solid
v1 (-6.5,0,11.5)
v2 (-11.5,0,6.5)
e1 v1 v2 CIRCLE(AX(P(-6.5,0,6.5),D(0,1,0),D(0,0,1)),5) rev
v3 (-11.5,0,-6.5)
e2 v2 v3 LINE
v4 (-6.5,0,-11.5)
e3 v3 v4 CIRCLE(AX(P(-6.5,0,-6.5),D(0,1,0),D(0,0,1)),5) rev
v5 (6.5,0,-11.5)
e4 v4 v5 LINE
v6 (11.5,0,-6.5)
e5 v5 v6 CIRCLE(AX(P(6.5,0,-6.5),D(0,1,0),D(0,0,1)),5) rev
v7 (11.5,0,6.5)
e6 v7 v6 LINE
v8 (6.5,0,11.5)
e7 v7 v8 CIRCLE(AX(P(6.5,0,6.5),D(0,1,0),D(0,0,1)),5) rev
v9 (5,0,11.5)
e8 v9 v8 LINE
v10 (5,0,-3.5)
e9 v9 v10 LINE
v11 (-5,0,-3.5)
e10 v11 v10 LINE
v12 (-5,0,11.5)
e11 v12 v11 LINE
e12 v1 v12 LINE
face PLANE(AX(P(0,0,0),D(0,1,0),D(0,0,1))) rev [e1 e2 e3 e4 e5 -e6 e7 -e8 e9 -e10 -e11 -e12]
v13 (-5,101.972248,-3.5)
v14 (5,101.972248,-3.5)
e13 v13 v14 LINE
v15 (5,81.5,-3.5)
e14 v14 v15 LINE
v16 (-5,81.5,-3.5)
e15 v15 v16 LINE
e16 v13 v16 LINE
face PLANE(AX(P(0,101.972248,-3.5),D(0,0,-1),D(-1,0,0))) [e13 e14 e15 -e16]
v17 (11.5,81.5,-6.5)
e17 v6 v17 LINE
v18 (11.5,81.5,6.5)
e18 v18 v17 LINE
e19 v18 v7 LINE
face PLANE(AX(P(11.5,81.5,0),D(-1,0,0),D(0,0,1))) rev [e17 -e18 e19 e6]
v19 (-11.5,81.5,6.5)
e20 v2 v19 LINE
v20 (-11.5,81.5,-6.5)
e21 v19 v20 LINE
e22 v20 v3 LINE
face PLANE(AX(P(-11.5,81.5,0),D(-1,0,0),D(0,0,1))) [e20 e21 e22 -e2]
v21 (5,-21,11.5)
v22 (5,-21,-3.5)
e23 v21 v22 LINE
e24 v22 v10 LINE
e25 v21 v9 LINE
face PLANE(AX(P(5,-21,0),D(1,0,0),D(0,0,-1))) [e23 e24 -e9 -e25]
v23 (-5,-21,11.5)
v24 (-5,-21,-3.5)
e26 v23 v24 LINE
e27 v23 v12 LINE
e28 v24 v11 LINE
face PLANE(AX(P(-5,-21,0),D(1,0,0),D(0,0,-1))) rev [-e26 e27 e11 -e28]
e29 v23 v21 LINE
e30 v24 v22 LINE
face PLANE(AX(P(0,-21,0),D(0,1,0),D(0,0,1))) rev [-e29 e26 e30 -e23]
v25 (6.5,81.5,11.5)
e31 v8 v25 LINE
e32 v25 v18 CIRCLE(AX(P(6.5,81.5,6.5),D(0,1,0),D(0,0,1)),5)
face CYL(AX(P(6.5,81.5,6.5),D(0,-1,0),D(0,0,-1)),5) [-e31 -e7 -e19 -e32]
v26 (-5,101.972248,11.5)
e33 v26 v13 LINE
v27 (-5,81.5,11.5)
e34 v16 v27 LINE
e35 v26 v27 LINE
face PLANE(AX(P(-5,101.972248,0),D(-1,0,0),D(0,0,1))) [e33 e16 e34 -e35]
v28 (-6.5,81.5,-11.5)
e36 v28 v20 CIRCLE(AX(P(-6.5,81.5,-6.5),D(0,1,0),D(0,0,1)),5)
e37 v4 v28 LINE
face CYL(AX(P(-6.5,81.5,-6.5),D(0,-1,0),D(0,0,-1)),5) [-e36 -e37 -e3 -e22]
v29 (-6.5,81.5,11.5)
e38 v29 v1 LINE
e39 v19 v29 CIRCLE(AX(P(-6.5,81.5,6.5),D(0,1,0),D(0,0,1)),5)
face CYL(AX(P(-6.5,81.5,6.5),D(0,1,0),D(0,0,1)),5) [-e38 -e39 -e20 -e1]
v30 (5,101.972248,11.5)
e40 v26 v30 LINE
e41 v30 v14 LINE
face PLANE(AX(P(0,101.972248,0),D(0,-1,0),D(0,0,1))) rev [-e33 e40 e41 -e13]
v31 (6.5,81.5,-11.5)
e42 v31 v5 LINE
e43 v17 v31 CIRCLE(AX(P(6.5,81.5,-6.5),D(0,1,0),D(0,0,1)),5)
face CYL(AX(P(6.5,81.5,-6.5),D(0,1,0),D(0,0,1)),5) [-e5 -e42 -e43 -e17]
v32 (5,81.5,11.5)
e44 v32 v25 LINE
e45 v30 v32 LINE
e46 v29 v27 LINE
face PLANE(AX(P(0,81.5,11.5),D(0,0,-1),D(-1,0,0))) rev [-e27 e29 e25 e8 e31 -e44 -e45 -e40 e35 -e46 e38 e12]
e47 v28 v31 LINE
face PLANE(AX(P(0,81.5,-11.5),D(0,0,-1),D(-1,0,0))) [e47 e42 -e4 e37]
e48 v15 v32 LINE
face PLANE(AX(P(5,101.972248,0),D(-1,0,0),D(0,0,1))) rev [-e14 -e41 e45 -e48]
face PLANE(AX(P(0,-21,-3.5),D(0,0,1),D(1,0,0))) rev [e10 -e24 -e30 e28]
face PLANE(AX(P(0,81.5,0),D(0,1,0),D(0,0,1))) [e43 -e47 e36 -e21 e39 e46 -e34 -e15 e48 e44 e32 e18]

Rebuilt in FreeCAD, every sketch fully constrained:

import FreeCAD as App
import Part
import Sketcher
from FreeCAD import Vector
Q = App.Units.Quantity


def edges_at(feature, points):
    """Names of the edges that pass closest to the given points."""
    edges = feature.Shape.Edges
    near = lambda p: min(range(len(edges)), key=lambda i: edges[i].distToShape(Part.Vertex(*p))[0])
    return sorted({f"Edge{near(p) + 1}" for p in points})

doc = App.newDocument("Part")
body = doc.addObject("PartDesign::Body", "Body")

# Sketch on XZ plane
sketch1 = doc.addObject("Sketcher::SketchObject", "Sketch")
body.addObject(sketch1)
sketch1.AttachmentSupport = (doc.XZ_Plane, [""])
sketch1.MapMode = "FlatFace"
sketch1.addGeometry([
    Part.LineSegment(Vector(-12, -12, 0), Vector(-12, 12, 0)),
    Part.LineSegment(Vector(-12, 12, 0), Vector(12, 12, 0)),
    Part.LineSegment(Vector(12, 12, 0), Vector(12, -12, 0)),
    Part.LineSegment(Vector(12, -12, 0), Vector(-12, -12, 0)),
], False)
sketch1.addConstraint([
    Sketcher.Constraint("Coincident", 0, 2, 1, 1),
    Sketcher.Constraint("Coincident", 1, 2, 2, 1),
    Sketcher.Constraint("Coincident", 2, 2, 3, 1),
    Sketcher.Constraint("Coincident", 3, 2, 0, 1),
    Sketcher.Constraint("Vertical", 0),
    Sketcher.Constraint("Horizontal", 1),
    Sketcher.Constraint("Vertical", 2),
    Sketcher.Constraint("Horizontal", 3),
    Sketcher.Constraint("Symmetric", 0, 2, 2, 2, -1, 1),
    Sketcher.Constraint("Equal", 3, 0),
    Sketcher.Constraint("DistanceX", 1, 1, 1, 2, Q("23 mm")),
])
pad1 = doc.addObject("PartDesign::Pad", "Pad")
body.addObject(pad1)
pad1.Profile = sketch1
pad1.Length = 81.5
pad1.Reversed = True

# Sketch on XZ plane
sketch2 = doc.addObject("Sketcher::SketchObject", "Sketch001")
body.addObject(sketch2)
sketch2.AttachmentSupport = (doc.XZ_Plane, [""])
sketch2.MapMode = "FlatFace"
sketch2.addGeometry([
    Part.LineSegment(Vector(-5, -4, 0), Vector(-5, 12, 0)),
    Part.LineSegment(Vector(-5, 12, 0), Vector(5, 12, 0)),
    Part.LineSegment(Vector(5, 12, 0), Vector(5, -4, 0)),
    Part.LineSegment(Vector(5, -4, 0), Vector(-5, -4, 0)),
], False)
sketch2.addConstraint([
    Sketcher.Constraint("Coincident", 0, 2, 1, 1),
    Sketcher.Constraint("Coincident", 1, 2, 2, 1),
    Sketcher.Constraint("Coincident", 2, 2, 3, 1),
    Sketcher.Constraint("Coincident", 3, 2, 0, 1),
    Sketcher.Constraint("Vertical", 0),
    Sketcher.Constraint("Horizontal", 1),
    Sketcher.Constraint("Vertical", 2),
    Sketcher.Constraint("Horizontal", 3),
    Sketcher.Constraint("DistanceX", 1, 1, 1, 2, Q("10 mm")),
    Sketcher.Constraint("DistanceY", 0, 1, 0, 2, Q("15 mm")),
    Sketcher.Constraint("DistanceX", 0, 2, -1, 1, Q("5 mm")),
    Sketcher.Constraint("DistanceY", -1, 1, 0, 2, Q("11.5 mm")),
])
pad2 = doc.addObject("PartDesign::Pad", "Pad001")
body.addObject(pad2)
pad2.Profile = sketch2
pad2.Length = 21
doc.recompute()

fillet = doc.addObject("PartDesign::Fillet", "Fillet")
body.addObject(fillet)
fillet.Base = (pad2, edges_at(pad2, [
    (-11.5, 40.75, -11.5),
    (11.5, 40.75, -11.5),
    (11.5, 40.75, 11.5),
    (-11.5, 40.75, 11.5),
]))
fillet.Radius = 5
doc.recompute()

datumplane = doc.addObject("PartDesign::Plane", "DatumPlane")
body.addObject(datumplane)
datumplane.AttachmentSupport = (doc.XZ_Plane, [""])
datumplane.MapMode = "FlatFace"
datumplane.AttachmentOffset = App.Placement(Vector(0, 0, -40.486124), App.Rotation())
mirrored = doc.addObject("PartDesign::Mirrored", "Mirrored")
body.addObject(mirrored)
mirrored.Originals = [pad2]
mirrored.MirrorPlane = (datumplane, [""])
body.Tip = mirrored

doc.recompute()
